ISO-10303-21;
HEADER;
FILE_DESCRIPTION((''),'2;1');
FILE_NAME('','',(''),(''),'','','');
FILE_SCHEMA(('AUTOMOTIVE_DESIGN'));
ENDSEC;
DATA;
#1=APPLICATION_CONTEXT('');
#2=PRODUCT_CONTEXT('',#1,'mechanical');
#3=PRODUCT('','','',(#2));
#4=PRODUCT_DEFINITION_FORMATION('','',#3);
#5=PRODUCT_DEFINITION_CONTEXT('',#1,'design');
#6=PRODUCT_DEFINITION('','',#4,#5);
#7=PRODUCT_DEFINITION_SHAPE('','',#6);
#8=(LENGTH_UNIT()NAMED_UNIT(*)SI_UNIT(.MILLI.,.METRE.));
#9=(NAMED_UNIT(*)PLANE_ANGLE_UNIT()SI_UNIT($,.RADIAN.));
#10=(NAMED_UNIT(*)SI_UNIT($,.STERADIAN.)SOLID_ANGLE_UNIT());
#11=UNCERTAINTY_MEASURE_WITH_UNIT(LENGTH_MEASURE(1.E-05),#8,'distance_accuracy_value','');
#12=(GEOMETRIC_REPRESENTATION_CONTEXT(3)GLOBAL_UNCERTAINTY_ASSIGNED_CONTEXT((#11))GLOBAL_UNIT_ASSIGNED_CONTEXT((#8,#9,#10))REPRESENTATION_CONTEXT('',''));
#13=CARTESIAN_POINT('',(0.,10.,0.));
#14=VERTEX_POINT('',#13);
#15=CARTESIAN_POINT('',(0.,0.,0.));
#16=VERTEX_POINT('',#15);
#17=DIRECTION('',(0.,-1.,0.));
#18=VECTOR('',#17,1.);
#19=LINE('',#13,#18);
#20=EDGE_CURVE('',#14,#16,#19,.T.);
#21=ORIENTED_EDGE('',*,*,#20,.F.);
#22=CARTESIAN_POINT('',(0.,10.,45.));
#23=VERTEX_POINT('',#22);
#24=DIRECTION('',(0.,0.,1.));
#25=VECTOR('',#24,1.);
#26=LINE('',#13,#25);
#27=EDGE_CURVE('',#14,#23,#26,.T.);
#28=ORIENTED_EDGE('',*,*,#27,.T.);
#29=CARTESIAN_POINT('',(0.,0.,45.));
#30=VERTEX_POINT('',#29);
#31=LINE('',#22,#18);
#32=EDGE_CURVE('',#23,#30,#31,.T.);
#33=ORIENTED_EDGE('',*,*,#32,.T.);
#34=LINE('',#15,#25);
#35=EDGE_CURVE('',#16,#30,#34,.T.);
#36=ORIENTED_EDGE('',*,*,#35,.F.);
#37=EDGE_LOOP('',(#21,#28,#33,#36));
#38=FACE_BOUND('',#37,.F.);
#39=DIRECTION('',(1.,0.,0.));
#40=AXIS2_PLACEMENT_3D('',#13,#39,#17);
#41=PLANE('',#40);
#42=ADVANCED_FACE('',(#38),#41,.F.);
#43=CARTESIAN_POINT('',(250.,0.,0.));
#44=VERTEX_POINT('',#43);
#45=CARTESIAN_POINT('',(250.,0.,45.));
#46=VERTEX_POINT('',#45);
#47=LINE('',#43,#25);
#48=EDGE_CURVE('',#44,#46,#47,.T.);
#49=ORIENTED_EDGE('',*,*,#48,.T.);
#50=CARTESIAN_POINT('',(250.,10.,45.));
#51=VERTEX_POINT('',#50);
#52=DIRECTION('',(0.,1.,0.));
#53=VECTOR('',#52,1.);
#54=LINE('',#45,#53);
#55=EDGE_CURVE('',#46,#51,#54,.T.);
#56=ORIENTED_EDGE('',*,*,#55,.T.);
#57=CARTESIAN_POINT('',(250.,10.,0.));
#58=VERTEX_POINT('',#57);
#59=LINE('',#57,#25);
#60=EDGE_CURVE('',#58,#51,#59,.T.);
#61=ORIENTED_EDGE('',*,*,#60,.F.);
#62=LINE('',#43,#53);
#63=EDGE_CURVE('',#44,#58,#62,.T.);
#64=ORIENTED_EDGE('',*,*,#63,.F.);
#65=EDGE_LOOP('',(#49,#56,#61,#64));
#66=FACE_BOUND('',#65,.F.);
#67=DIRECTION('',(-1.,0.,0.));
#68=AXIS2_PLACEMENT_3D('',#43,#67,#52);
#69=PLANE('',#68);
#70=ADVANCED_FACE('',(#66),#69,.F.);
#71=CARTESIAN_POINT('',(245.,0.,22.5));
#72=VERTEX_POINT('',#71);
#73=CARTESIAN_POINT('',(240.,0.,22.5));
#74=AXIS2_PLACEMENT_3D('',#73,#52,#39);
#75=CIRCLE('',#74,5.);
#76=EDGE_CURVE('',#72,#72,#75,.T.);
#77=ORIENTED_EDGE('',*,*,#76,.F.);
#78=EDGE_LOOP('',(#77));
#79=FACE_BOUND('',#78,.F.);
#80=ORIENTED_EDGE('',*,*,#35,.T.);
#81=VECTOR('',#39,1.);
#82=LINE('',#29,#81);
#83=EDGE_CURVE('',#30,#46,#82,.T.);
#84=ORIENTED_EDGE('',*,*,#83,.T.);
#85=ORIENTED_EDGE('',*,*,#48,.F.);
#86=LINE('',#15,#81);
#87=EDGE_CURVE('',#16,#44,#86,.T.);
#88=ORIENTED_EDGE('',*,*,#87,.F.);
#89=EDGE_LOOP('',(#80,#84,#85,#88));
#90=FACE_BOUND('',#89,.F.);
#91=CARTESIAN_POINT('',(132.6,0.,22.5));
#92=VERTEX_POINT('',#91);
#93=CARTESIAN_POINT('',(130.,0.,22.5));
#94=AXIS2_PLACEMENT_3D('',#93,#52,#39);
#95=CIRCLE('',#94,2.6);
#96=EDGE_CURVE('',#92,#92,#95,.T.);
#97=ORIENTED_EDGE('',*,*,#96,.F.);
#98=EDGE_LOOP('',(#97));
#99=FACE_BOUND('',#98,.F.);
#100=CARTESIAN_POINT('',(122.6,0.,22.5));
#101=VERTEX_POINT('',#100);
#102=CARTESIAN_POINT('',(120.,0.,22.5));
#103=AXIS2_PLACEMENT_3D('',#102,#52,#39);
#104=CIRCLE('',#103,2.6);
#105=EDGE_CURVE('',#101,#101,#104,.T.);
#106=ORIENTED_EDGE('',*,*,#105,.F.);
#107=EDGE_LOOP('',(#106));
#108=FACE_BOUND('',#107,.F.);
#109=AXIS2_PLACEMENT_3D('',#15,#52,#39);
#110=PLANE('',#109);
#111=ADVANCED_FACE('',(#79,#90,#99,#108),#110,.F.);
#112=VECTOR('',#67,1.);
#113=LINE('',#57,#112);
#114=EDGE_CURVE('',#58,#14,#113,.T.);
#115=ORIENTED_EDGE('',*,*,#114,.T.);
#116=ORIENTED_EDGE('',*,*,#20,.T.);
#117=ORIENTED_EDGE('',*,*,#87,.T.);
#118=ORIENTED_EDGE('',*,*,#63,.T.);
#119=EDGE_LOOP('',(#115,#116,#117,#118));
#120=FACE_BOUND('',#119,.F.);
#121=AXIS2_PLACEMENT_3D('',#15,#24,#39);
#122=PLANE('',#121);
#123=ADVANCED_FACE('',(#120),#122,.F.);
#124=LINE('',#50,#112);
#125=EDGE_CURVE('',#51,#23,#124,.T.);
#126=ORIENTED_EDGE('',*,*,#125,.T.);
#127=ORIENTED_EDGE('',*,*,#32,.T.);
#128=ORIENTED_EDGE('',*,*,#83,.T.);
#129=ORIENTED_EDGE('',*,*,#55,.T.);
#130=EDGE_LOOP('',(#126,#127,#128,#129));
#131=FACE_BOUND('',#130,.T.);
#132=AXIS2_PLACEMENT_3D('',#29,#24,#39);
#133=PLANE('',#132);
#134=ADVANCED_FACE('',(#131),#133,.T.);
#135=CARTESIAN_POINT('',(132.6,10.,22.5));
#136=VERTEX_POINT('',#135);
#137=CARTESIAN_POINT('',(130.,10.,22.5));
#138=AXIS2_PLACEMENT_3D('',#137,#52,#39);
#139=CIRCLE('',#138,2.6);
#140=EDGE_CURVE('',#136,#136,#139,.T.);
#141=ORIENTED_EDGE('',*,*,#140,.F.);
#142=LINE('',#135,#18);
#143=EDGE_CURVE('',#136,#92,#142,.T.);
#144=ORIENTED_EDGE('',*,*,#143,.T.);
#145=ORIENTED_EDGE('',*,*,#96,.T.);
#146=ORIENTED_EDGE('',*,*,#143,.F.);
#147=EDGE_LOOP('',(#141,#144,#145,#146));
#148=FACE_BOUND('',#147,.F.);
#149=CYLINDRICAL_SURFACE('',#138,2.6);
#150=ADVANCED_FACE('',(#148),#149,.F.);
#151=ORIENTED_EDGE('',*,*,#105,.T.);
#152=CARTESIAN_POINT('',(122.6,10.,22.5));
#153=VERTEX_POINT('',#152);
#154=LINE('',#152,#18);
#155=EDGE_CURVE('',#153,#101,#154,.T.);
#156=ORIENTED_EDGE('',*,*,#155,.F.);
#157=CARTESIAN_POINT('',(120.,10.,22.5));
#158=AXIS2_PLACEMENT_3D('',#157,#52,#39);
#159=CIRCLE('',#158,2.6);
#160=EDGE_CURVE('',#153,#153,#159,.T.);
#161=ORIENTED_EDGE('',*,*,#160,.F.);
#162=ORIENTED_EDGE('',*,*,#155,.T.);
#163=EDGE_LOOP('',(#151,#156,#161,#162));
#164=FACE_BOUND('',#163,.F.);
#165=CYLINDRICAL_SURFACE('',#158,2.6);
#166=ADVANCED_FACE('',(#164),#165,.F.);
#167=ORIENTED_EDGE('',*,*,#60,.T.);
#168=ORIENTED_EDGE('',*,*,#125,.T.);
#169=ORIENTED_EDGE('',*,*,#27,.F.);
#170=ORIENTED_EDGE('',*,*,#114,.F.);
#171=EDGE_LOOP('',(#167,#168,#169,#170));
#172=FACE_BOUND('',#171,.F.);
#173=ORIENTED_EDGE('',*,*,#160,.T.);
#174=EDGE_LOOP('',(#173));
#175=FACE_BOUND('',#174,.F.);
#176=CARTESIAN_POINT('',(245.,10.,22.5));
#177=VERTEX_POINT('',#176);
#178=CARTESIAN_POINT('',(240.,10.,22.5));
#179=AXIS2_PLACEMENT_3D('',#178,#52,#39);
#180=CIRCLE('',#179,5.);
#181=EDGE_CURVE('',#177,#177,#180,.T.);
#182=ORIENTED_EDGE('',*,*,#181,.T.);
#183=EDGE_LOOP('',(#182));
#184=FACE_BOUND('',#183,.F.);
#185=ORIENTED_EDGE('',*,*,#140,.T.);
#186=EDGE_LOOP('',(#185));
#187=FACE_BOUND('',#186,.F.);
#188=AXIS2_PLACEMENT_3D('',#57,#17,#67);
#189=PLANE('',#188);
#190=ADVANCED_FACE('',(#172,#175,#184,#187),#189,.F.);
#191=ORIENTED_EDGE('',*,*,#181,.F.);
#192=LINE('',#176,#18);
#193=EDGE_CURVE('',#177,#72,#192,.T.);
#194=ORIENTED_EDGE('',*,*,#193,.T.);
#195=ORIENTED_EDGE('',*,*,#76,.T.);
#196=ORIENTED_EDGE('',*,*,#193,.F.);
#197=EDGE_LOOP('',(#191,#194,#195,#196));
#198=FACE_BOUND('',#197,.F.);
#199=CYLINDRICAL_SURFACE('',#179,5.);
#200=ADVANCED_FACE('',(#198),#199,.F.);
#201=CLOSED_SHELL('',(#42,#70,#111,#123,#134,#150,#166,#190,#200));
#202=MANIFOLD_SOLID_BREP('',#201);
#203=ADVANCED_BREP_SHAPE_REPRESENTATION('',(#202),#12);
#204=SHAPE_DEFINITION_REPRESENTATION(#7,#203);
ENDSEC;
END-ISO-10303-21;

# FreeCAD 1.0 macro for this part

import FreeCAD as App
import Part
import Sketcher

V = App.Vector


def add_polygon(sketch, points):
    """Adds a closed chain of lines whose ends are joined by coincident constraints."""
    first, n = sketch.GeometryCount, len(points)
    for a, b in zip(points, points[1:] + points[:1]):
        sketch.addGeometry(Part.LineSegment(App.Vector(*a, 0), App.Vector(*b, 0)), False)
    for i in range(n):
        sketch.addConstraint(Sketcher.Constraint("Coincident", first + i, 2, first + (i + 1) % n, 1))

doc = App.newDocument("Part")
body = doc.addObject("PartDesign::Body", "Body")

# Sketch on XY plane
sketch1 = body.newObject("Sketcher::SketchObject", "Sketch")
sketch1.AttachmentSupport = (doc.getObject("XY_Plane"), [""])
sketch1.MapMode = "FlatFace"
add_polygon(sketch1, [(0, 10), (0, 0), (250, 0), (250, 10)])  # lines 0-3
sketch1.addConstraint(Sketcher.Constraint("Vertical", 0))
sketch1.addConstraint(Sketcher.Constraint("Horizontal", 1))
sketch1.addConstraint(Sketcher.Constraint("Vertical", 2))
sketch1.addConstraint(Sketcher.Constraint("Horizontal", 3))
sketch1.addConstraint(Sketcher.Constraint("Coincident", 0, 2, -1, 1))
sketch1.addConstraint(Sketcher.Constraint("DistanceX", 1, 1, 1, 2, 250.0))
sketch1.addConstraint(Sketcher.Constraint("DistanceY", 0, 2, 0, 1, 10.0))
pad1 = body.newObject("PartDesign::Pad", "Pad")
pad1.Profile = sketch1
pad1.Length = 45

# Sketch on XZ plane
sketch2 = body.newObject("Sketcher::SketchObject", "Sketch001")
sketch2.AttachmentSupport = (doc.getObject("XZ_Plane"), [""])
sketch2.MapMode = "FlatFace"
sketch2.AttachmentOffset = App.Placement(V(0, 0, -10), App.Rotation())
sketch2.addGeometry(Part.Circle(V(120, 22.5, 0), V(0, 0, 1), 2.6), False)
sketch2.addGeometry(Part.Circle(V(130, 22.5, 0), V(0, 0, 1), 2.6), False)
sketch2.addConstraint(Sketcher.Constraint("Equal", 0, 1))
sketch2.addConstraint(Sketcher.Constraint("Horizontal", 0, 3, 1, 3))
sketch2.addConstraint(Sketcher.Constraint("Diameter", 0, 5.2))
sketch2.addConstraint(Sketcher.Constraint("DistanceX", 0, 3, 1, 3, 10.0))
sketch2.addConstraint(Sketcher.Constraint("DistanceX", -1, 1, 0, 3, 120.0))
sketch2.addConstraint(Sketcher.Constraint("DistanceY", -1, 1, 0, 3, 22.5))
pocket1 = body.newObject("PartDesign::Pocket", "Pocket")
pocket1.Profile = sketch2
pocket1.Type = "ThroughAll"
pocket1.Reversed = True

# Sketch on XZ plane
sketch3 = body.newObject("Sketcher::SketchObject", "Sketch002")
sketch3.AttachmentSupport = (doc.getObject("XZ_Plane"), [""])
sketch3.MapMode = "FlatFace"
sketch3.AttachmentOffset = App.Placement(V(0, 0, -10), App.Rotation())
sketch3.addGeometry(Part.Circle(V(240, 22, 0), V(0, 0, 1), 5), False)
sketch3.addConstraint(Sketcher.Constraint("Diameter", 0, 10.0))
sketch3.addConstraint(Sketcher.Constraint("DistanceX", -1, 1, 0, 3, 240.0))
sketch3.addConstraint(Sketcher.Constraint("DistanceY", -1, 1, 0, 3, 22.5))
pocket2 = body.newObject("PartDesign::Pocket", "Pocket001")
pocket2.Profile = sketch3
pocket2.Type = "ThroughAll"
pocket2.Reversed = True

doc.recompute()
